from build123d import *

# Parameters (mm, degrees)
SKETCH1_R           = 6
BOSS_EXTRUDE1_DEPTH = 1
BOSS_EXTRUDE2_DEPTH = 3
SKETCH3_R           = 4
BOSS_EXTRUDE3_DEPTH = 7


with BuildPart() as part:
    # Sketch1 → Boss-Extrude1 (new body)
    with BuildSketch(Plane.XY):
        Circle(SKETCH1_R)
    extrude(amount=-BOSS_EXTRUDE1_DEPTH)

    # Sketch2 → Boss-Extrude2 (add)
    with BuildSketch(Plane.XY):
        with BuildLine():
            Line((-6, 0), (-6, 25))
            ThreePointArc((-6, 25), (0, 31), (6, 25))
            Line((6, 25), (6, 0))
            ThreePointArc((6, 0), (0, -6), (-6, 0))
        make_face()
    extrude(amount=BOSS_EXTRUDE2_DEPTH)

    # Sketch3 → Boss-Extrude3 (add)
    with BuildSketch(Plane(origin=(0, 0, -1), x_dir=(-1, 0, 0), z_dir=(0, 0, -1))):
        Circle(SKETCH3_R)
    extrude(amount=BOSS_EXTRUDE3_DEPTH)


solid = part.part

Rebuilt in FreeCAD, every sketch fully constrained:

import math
import FreeCAD as App
import Part
import Sketcher

V = App.Vector
Q = App.Units.Quantity

doc = App.newDocument("Part")
body = doc.addObject("PartDesign::Body", "Body")

sketch1 = body.newObject("Sketcher::SketchObject", "Sketch")
sketch1.AttachmentSupport = (doc.getObject("XY_Plane"), [""])
sketch1.MapMode = "FlatFace"
sketch1.addGeometry(Part.Circle(V(0, 0, 0), V(0, 0, 1), 6), False)
sketch1.addConstraint([
    Sketcher.Constraint("Coincident", 0, 3, -1, 1),
    Sketcher.Constraint("Diameter", 0, Q("12 mm")),
])
pad1 = body.newObject("PartDesign::Pad", "Pad")
pad1.Profile = sketch1
pad1.Length = 1
pad1.Reversed = True

sketch2 = body.newObject("Sketcher::SketchObject", "Sketch001")
sketch2.AttachmentSupport = (doc.getObject("XY_Plane"), [""])
sketch2.MapMode = "FlatFace"
sketch2.addGeometry([
    Part.LineSegment(V(-6, 25, 0), V(-6, 0, 0)),
    Part.ArcOfCircle(Part.Circle(V(0, 0, 0), V(0, 0, 1), 6), math.radians(180), math.radians(360)),
    Part.LineSegment(V(6, 0, 0), V(6, 25, 0)),
    Part.ArcOfCircle(Part.Circle(V(0, 25, 0), V(0, 0, 1), 6), math.radians(0), math.radians(180)),
], False)
sketch2.addConstraint([
    Sketcher.Constraint("Tangent", 0, 2, 1, 1),
    Sketcher.Constraint("Tangent", 1, 2, 2, 1),
    Sketcher.Constraint("Tangent", 2, 2, 3, 1),
    Sketcher.Constraint("Tangent", 3, 2, 0, 1),
    Sketcher.Constraint("Vertical", 0),
    Sketcher.Constraint("Vertical", 2),
    Sketcher.Constraint("Coincident", 1, 3, -1, 1),
    Sketcher.Constraint("Radius", 1, Q("6 mm")),
    Sketcher.Constraint("DistanceY", 0, 2, 0, 1, Q("25 mm")),
])
pad2 = body.newObject("PartDesign::Pad", "Pad001")
pad2.Profile = sketch2
pad2.Length = 3

sketch3 = body.newObject("Sketcher::SketchObject", "Sketch002")
sketch3.AttachmentSupport = (doc.getObject("XY_Plane"), [""])
sketch3.MapMode = "FlatFace"
sketch3.AttachmentOffset = App.Placement(V(0, 0, -1), App.Rotation())
sketch3.addGeometry(Part.Circle(V(0, 0, 0), V(0, 0, 1), 4), False)
sketch3.addConstraint([
    Sketcher.Constraint("Coincident", 0, 3, -1, 1),
    Sketcher.Constraint("Diameter", 0, Q("8 mm")),
])
pad3 = body.newObject("PartDesign::Pad", "Pad002")
pad3.Profile = sketch3
pad3.Length = 7
pad3.Reversed = True

doc.recompute()
